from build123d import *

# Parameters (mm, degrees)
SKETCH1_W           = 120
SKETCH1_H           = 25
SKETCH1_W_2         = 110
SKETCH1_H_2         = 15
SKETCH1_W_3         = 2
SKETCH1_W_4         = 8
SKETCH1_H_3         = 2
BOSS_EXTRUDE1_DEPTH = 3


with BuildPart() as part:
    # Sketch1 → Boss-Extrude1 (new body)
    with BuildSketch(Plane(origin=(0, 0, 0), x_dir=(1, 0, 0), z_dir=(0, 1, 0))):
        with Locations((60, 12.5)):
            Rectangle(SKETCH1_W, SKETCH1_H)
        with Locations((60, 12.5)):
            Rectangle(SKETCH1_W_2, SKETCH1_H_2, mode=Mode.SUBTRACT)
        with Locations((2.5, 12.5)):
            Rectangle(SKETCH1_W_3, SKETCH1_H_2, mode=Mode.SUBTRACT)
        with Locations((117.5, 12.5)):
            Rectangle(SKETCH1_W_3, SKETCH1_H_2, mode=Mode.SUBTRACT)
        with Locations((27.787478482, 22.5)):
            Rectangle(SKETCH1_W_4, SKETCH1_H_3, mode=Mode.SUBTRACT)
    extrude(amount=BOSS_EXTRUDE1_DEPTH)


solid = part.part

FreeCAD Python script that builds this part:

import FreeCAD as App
import Part
import Sketcher

V = App.Vector


def add_polygon(sketch, points):
    """Adds a closed chain of lines whose ends are joined by coincident constraints."""
    first, n = sketch.GeometryCount, len(points)
    for a, b in zip(points, points[1:] + points[:1]):
        sketch.addGeometry(Part.LineSegment(App.Vector(*a, 0), App.Vector(*b, 0)), False)
    for i in range(n):
        sketch.addConstraint(Sketcher.Constraint("Coincident", first + i, 2, first + (i + 1) % n, 1))

doc = App.newDocument("Part")
body = doc.addObject("PartDesign::Body", "Body")

sketch1 = body.newObject("Sketcher::SketchObject", "Sketch")
sketch1.AttachmentSupport = (doc.getObject("XZ_Plane"), [""])
sketch1.MapMode = "FlatFace"
add_polygon(sketch1, [(0, -25), (0, 0), (120, 0), (120, -25)])
add_polygon(sketch1, [(3.5, -5), (1.5, -5), (1.5, -20), (3.5, -20)])
add_polygon(sketch1, [(115, -5), (5, -5), (5, -20), (115, -20)])
add_polygon(sketch1, [(118.5, -5), (116.5, -5), (116.5, -20), (118.5, -20)])
add_polygon(sketch1, [(31.8, -21.5), (23.8, -21.5), (23.8, -23.5), (31.8, -23.5)])
sketch1.addConstraint([
    Sketcher.Constraint("Vertical", 0),
    Sketcher.Constraint("Horizontal", 1),
    Sketcher.Constraint("Vertical", 2),
    Sketcher.Constraint("Horizontal", 3),
    Sketcher.Constraint("Horizontal", 4),
    Sketcher.Constraint("Vertical", 5),
    Sketcher.Constraint("Horizontal", 6),
    Sketcher.Constraint("Vertical", 7),
    Sketcher.Constraint("Horizontal", 8),
    Sketcher.Constraint("Vertical", 9),
    Sketcher.Constraint("Horizontal", 10),
    Sketcher.Constraint("Vertical", 11),
    Sketcher.Constraint("Horizontal", 12),
    Sketcher.Constraint("Vertical", 13),
    Sketcher.Constraint("Horizontal", 14),
    Sketcher.Constraint("Vertical", 15),
    Sketcher.Constraint("Horizontal", 16),
    Sketcher.Constraint("Vertical", 17),
    Sketcher.Constraint("Horizontal", 18),
    Sketcher.Constraint("Vertical", 19),
    Sketcher.Constraint("Coincident", 0, 2, -1, 1),
    Sketcher.Constraint("Horizontal", 7, 2, 8, 2),
    Sketcher.Constraint("Horizontal", 6, 2, 9, 2),
    Sketcher.Constraint("Horizontal", 11, 2, 12, 2),
    Sketcher.Constraint("Horizontal", 10, 2, 13, 2),
    Sketcher.Constraint("Equal", 6, 12),
    Sketcher.Constraint("Equal", 14, 17),
    Sketcher.Constraint("DistanceX", 1, 1, 1, 2, 120.0),
    Sketcher.Constraint("DistanceX", 4, 2, 4, 1, 2.0),
    Sketcher.Constraint("DistanceX", 8, 2, 8, 1, 110.0),
    Sketcher.Constraint("DistanceX", 16, 2, 16, 1, 8.0),
    Sketcher.Constraint("DistanceY", 0, 1, 0, 2, 25.0),
    Sketcher.Constraint("DistanceY", 5, 2, 5, 1, 15.0),
    Sketcher.Constraint("DistanceY", 4, 2, -1, 1, 5.0),
    Sketcher.Constraint("DistanceX", -1, 1, 8, 2, 5.0),
    Sketcher.Constraint("DistanceX", -1, 1, 4, 2, 1.5),
    Sketcher.Constraint("DistanceX", -1, 1, 12, 2, 116.5),
    Sketcher.Constraint("DistanceY", 16, 2, -1, 1, 21.5),
    Sketcher.Constraint("DistanceX", -1, 1, 16, 2, 23.787478),
])
pad1 = body.newObject("PartDesign::Pad", "Pad")
pad1.Profile = sketch1
pad1.Length = 3
pad1.Reversed = True

doc.recompute()
